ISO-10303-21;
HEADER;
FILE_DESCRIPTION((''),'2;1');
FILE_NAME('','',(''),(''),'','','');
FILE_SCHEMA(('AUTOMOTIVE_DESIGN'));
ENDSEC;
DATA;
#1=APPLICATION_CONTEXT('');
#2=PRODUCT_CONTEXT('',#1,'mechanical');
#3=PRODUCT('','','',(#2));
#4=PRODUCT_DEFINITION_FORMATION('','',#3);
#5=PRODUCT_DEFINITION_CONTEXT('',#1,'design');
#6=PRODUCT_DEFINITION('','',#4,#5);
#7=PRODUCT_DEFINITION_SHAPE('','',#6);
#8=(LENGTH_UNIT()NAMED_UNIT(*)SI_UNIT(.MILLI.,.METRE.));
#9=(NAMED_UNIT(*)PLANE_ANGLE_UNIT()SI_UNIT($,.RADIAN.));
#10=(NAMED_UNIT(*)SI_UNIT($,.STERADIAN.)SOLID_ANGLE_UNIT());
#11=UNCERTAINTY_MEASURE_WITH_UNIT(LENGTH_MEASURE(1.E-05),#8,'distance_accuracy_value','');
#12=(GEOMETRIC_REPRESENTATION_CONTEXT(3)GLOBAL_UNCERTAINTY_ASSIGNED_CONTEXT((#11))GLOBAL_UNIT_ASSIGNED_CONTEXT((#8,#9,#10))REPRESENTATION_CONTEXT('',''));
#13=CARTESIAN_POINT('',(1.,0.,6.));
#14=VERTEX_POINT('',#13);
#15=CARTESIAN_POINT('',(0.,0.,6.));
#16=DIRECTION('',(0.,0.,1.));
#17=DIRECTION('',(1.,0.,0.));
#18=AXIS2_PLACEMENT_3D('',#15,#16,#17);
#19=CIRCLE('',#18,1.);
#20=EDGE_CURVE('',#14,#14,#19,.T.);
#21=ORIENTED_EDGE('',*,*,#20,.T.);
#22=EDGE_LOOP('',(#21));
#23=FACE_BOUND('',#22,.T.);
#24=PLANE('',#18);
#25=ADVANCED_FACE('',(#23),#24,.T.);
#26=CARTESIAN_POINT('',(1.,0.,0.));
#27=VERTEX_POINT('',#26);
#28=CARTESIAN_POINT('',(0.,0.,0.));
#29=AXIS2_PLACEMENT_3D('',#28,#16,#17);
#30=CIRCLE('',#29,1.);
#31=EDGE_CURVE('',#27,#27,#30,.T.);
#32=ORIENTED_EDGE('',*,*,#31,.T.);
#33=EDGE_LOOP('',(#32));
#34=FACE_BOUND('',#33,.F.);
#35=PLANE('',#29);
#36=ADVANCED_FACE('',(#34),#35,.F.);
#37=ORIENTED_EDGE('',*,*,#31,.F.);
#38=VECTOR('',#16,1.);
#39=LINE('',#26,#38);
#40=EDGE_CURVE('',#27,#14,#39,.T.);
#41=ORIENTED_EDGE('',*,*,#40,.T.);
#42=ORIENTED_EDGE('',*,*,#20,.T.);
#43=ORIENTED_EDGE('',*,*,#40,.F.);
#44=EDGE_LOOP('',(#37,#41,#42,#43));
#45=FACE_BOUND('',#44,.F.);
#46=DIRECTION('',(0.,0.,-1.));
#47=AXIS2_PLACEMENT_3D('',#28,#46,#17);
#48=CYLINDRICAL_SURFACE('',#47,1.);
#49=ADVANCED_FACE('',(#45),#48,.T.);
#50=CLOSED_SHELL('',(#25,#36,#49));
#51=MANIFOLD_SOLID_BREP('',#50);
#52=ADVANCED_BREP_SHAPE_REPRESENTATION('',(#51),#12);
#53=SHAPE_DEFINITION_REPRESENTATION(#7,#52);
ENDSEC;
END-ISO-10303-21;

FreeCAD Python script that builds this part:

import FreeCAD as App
import Part
import Sketcher

doc = App.newDocument("Part")
body = doc.addObject("PartDesign::Body", "Body")

# Sketch on XY plane
sketch1 = body.newObject("Sketcher::SketchObject", "Sketch")
sketch1.AttachmentSupport = (doc.getObject("XY_Plane"), [""])
sketch1.MapMode = "FlatFace"
sketch1.addGeometry(Part.Circle(App.Vector(0, 0, 0), App.Vector(0, 0, 1), 1), False)
sketch1.addConstraint([
    Sketcher.Constraint("Coincident", 0, 3, -1, 1),
    Sketcher.Constraint("Diameter", 0, 2.0),
])
pad1 = body.newObject("PartDesign::Pad", "Pad")
pad1.Profile = sketch1
pad1.Length = 6

doc.recompute()
